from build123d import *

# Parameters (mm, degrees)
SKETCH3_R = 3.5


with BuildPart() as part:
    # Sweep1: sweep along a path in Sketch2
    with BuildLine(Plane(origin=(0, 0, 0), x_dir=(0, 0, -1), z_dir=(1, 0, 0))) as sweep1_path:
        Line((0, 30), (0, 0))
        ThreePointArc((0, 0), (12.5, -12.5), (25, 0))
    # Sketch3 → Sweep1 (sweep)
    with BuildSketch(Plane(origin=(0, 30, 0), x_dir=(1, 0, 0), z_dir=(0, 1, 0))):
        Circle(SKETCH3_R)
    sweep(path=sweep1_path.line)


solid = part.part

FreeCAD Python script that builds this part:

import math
import FreeCAD as App
import Part
import Sketcher

doc = App.newDocument("Part")
body = doc.addObject("PartDesign::Body", "Body")

sketch1 = body.newObject("Sketcher::SketchObject", "Sketch")
sketch1.AttachmentSupport = (doc.getObject("XZ_Plane"), [""])
sketch1.MapMode = "FlatFace"
sketch1.AttachmentOffset = App.Placement(App.Vector(0, 0, -30), App.Rotation())
sketch1.addGeometry(Part.Circle(App.Vector(0, 0, 0), App.Vector(0, 0, 1), 3.5), False)
sketch1.addConstraint([
    Sketcher.Constraint("Coincident", 0, 3, -1, 1),
    Sketcher.Constraint("Diameter", 0, 7.0),
])

sketch2 = body.newObject("Sketcher::SketchObject", "Sketch001")
sketch2.AttachmentSupport = (doc.getObject("YZ_Plane"), [""])
sketch2.MapMode = "FlatFace"
sketch2.addGeometry([
    Part.LineSegment(App.Vector(30, 0, 0), App.Vector(0, 0, 0)),
    Part.ArcOfCircle(Part.Circle(App.Vector(0, -12, 0), App.Vector(0, 0, 1), 12), math.radians(90), math.radians(270)),
], False)
sketch2.addConstraint([
    Sketcher.Constraint("Tangent", 0, 2, 1, 1),
    Sketcher.Constraint("Horizontal", 0),
    Sketcher.Constraint("Coincident", 0, 2, -1, 1),
    Sketcher.Constraint("PointOnObject", 1, 2, -2),
    Sketcher.Constraint("Radius", 1, 12.5),
    Sketcher.Constraint("DistanceX", 0, 2, 0, 1, 30.0),
])
doc.recompute()

additivepipe = body.newObject("PartDesign::AdditivePipe", "AdditivePipe")
additivepipe.Profile = sketch1
additivepipe.Spine = (sketch2, ["Edge1", "Edge2"])

doc.recompute()
